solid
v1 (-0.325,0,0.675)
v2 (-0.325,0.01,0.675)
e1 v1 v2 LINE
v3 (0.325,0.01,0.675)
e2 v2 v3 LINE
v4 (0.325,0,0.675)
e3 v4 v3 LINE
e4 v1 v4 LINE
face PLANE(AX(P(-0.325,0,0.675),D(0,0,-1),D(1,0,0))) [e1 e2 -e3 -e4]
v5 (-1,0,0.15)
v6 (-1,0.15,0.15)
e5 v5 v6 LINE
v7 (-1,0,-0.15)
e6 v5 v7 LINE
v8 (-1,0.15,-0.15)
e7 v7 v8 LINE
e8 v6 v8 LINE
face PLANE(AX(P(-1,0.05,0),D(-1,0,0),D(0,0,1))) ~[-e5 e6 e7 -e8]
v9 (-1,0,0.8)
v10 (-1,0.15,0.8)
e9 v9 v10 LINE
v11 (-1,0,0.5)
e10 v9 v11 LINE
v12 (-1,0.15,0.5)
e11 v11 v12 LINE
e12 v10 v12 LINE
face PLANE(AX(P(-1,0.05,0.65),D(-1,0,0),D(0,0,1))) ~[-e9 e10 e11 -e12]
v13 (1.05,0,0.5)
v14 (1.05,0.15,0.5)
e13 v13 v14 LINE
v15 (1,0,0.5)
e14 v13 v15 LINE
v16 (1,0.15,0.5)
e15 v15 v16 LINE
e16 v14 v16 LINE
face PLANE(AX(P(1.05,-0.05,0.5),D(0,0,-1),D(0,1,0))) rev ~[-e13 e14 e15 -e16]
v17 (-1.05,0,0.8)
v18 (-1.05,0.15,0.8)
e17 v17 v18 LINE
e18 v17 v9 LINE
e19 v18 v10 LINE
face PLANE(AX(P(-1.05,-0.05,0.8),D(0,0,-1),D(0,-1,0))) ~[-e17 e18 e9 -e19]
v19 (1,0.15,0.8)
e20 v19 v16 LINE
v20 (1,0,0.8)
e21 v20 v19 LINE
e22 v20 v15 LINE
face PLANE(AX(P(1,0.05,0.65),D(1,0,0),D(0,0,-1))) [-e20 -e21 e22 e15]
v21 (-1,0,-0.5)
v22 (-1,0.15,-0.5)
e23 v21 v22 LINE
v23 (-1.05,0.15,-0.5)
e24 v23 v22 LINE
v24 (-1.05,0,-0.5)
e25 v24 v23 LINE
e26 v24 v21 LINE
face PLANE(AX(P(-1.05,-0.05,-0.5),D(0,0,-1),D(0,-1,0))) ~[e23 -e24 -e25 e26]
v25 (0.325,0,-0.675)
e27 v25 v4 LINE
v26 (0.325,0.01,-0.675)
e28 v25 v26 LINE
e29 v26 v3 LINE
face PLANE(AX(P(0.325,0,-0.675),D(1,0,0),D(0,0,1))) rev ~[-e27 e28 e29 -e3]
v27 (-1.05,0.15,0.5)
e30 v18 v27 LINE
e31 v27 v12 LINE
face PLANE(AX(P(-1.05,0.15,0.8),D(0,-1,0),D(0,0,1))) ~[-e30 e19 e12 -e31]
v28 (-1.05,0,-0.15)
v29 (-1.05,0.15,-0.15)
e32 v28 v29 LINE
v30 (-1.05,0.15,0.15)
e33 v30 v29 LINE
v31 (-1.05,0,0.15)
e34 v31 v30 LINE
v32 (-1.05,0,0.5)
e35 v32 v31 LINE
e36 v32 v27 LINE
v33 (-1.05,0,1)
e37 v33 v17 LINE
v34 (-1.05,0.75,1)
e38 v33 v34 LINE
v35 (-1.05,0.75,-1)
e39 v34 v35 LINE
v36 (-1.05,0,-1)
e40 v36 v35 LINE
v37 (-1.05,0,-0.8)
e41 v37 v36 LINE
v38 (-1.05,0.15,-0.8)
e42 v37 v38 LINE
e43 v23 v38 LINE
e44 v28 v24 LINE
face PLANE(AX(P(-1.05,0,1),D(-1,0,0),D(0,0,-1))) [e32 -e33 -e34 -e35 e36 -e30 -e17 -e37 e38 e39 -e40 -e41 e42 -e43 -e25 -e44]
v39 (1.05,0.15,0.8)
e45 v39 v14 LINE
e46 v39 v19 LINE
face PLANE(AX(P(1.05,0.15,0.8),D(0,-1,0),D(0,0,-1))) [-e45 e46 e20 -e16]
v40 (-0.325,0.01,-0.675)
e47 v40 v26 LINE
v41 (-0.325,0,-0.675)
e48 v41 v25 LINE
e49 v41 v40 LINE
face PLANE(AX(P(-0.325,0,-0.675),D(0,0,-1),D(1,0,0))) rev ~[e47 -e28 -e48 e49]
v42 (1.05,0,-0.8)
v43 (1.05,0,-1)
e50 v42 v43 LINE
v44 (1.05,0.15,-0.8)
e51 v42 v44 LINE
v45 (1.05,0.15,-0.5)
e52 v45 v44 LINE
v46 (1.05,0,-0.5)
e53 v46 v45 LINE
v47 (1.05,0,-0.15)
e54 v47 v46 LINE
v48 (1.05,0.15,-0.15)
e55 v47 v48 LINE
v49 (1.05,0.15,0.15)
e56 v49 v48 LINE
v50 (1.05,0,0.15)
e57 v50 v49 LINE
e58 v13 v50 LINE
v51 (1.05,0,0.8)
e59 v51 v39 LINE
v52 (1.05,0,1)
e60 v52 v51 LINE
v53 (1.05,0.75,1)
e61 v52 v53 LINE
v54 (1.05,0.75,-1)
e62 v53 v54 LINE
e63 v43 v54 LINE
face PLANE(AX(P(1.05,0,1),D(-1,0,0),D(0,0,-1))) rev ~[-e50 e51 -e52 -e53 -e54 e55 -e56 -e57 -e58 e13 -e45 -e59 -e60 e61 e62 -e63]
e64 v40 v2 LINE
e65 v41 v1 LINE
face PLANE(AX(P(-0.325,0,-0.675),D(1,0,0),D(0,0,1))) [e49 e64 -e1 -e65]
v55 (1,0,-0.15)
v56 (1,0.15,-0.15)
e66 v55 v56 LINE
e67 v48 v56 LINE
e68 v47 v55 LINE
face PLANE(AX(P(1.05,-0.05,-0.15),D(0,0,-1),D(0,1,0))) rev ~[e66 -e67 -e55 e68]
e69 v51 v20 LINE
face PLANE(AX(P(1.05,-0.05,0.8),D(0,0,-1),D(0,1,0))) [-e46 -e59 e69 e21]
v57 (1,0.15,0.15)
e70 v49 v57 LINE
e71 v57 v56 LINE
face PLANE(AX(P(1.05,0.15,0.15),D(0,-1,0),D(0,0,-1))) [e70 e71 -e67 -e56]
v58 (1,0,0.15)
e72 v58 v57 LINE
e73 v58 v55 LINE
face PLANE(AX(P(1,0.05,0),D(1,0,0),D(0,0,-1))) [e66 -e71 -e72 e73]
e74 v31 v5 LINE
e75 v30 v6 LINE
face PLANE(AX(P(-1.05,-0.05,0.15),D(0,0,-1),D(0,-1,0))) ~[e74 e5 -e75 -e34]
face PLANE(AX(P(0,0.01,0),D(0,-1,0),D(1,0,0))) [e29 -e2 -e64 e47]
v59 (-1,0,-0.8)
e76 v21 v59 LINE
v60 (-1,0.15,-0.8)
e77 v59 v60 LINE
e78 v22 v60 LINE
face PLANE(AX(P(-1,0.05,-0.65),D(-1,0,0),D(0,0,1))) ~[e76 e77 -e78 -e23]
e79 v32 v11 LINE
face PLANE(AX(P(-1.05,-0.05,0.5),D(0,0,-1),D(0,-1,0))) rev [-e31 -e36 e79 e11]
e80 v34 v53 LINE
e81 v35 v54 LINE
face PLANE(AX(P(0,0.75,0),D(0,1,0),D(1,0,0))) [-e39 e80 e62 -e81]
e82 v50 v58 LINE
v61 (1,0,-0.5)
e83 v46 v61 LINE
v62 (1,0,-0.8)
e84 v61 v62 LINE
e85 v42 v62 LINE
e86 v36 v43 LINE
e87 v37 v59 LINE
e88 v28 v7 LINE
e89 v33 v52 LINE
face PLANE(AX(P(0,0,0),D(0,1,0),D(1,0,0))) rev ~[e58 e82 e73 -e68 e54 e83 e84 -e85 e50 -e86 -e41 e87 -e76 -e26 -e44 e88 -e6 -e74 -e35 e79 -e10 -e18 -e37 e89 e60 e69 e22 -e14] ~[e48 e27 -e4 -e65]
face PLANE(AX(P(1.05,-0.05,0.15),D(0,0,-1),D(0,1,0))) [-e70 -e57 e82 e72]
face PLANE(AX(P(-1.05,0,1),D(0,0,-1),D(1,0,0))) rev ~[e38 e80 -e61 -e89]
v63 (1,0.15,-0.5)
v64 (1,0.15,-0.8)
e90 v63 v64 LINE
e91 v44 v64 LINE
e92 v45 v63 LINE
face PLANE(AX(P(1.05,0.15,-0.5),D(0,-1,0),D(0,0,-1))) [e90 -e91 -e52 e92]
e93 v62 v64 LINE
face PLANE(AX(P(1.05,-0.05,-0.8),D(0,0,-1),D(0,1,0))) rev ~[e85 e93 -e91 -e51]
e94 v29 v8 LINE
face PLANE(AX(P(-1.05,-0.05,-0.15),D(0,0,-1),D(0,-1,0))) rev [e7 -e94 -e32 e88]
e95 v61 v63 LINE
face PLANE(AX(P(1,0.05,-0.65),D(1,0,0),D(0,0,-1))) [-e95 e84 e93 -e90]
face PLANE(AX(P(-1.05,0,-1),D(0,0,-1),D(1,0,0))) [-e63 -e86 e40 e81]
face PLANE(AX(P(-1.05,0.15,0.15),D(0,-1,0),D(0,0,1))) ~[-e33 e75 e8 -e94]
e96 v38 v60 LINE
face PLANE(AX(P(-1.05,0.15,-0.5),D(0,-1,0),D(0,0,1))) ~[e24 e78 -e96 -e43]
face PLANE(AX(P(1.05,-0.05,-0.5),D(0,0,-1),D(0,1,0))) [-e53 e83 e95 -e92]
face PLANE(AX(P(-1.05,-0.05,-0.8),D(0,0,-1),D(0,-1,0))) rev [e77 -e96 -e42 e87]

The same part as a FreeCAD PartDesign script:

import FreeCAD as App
import Part
import Sketcher

V = App.Vector
Q = App.Units.Quantity


def add_polygon(sketch, points):
    """Adds a closed chain of lines whose ends are joined by coincident constraints."""
    first, n = sketch.GeometryCount, len(points)
    for a, b in zip(points, points[1:] + points[:1]):
        sketch.addGeometry(Part.LineSegment(App.Vector(*a, 0), App.Vector(*b, 0)), False)
    for i in range(n):
        sketch.addConstraint(Sketcher.Constraint("Coincident", first + i, 2, first + (i + 1) % n, 1))

doc = App.newDocument("Part")
body = doc.addObject("PartDesign::Body", "Body")

sketch1 = body.newObject("Sketcher::SketchObject", "Sketch")
sketch1.AttachmentSupport = (doc.getObject("XZ_Plane"), [""])
sketch1.MapMode = "FlatFace"
add_polygon(sketch1, [(-1.1, -1), (-1.1, 1), (1.1, 1), (1.1, -1)])
sketch1.addConstraint(Sketcher.Constraint("Vertical", 0))
sketch1.addConstraint(Sketcher.Constraint("Horizontal", 1))
sketch1.addConstraint(Sketcher.Constraint("Vertical", 2))
sketch1.addConstraint(Sketcher.Constraint("Horizontal", 3))
sketch1.addConstraint(Sketcher.Constraint("Symmetric", 0, 2, 2, 2, -1, 1))
sketch1.addConstraint(Sketcher.Constraint("DistanceY", 0, 1, 0, 2, Q("2 mm")))
sketch1.addConstraint(Sketcher.Constraint("DistanceX", 1, 1, 1, 2, Q("2.1 mm")))
pad1 = body.newObject("PartDesign::Pad", "Pad")
pad1.Profile = sketch1
pad1.Length = 0.75
pad1.Reversed = True

sketch2 = body.newObject("Sketcher::SketchObject", "Sketch001")
sketch2.AttachmentSupport = (doc.getObject("YZ_Plane"), [""])
sketch2.MapMode = "FlatFace"
sketch2.AttachmentOffset = App.Placement(V(0, 0, 1.05), App.Rotation())
add_polygon(sketch2, [(0.15, 0.8), (-0.05, 0.8), (-0.05, 0.5), (0.15, 0.5)])
add_polygon(sketch2, [(0.15, 0.15), (-0.05, 0.15), (-0.05, -0.15), (0.15, -0.15)])
add_polygon(sketch2, [(0.15, -0.5), (-0.05, -0.5), (-0.05, -0.8), (0.15, -0.8)])
sketch2.addConstraint(Sketcher.Constraint("Horizontal", 0))
sketch2.addConstraint(Sketcher.Constraint("Vertical", 1))
sketch2.addConstraint(Sketcher.Constraint("Horizontal", 2))
sketch2.addConstraint(Sketcher.Constraint("Vertical", 3))
sketch2.addConstraint(Sketcher.Constraint("Horizontal", 4))
sketch2.addConstraint(Sketcher.Constraint("Vertical", 5))
sketch2.addConstraint(Sketcher.Constraint("Horizontal", 6))
sketch2.addConstraint(Sketcher.Constraint("Vertical", 7))
sketch2.addConstraint(Sketcher.Constraint("Horizontal", 8))
sketch2.addConstraint(Sketcher.Constraint("Vertical", 9))
sketch2.addConstraint(Sketcher.Constraint("Horizontal", 10))
sketch2.addConstraint(Sketcher.Constraint("Vertical", 11))
sketch2.addConstraint(Sketcher.Constraint("Symmetric", 1, 2, 8, 2, -1))
sketch2.addConstraint(Sketcher.Constraint("Symmetric", 3, 2, 10, 2, -1))
sketch2.addConstraint(Sketcher.Constraint("Vertical", 1, 2, 4, 2))
sketch2.addConstraint(Sketcher.Constraint("Vertical", 3, 2, 6, 2))
sketch2.addConstraint(Sketcher.Constraint("Equal", 3, 5))
sketch2.addConstraint(Sketcher.Constraint("DistanceX", 0, 2, 0, 1, Q("0.2 mm")))
sketch2.addConstraint(Sketcher.Constraint("DistanceY", 1, 2, 1, 1, Q("0.3 mm")))
sketch2.addConstraint(Sketcher.Constraint("DistanceY", 8, 2, 1, 2, Q("1 mm")))
sketch2.addConstraint(Sketcher.Constraint("DistanceX", 0, 2, -1, 1, Q("0.05 mm")))
sketch2.addConstraint(Sketcher.Constraint("DistanceY", -1, 1, 4, 2, Q("0.15 mm")))
pocket1 = body.newObject("PartDesign::Pocket", "Pocket")
pocket1.Profile = sketch2
pocket1.Length = 0.05
doc.recompute()

mirrored = body.newObject("PartDesign::Mirrored", "Mirrored")
mirrored.Originals = [pocket1]
mirrored.MirrorPlane = (doc.getObject("YZ_Plane"), [""])
body.Tip = mirrored

sketch3 = body.newObject("Sketcher::SketchObject", "Sketch002")
sketch3.AttachmentSupport = (doc.getObject("XZ_Plane"), [""])
sketch3.MapMode = "FlatFace"
add_polygon(sketch3, [(-0.3, 0.7), (-0.3, -0.7), (0.3, -0.7), (0.3, 0.7)])
sketch3.addConstraint(Sketcher.Constraint("Vertical", 0))
sketch3.addConstraint(Sketcher.Constraint("Horizontal", 1))
sketch3.addConstraint(Sketcher.Constraint("Vertical", 2))
sketch3.addConstraint(Sketcher.Constraint("Horizontal", 3))
sketch3.addConstraint(Sketcher.Constraint("Symmetric", 0, 2, 2, 2, -1, 1))
sketch3.addConstraint(Sketcher.Constraint("DistanceX", 1, 1, 1, 2, Q("0.65 mm")))
sketch3.addConstraint(Sketcher.Constraint("DistanceY", 0, 2, 0, 1, Q("1.35 mm")))
pocket2 = body.newObject("PartDesign::Pocket", "Pocket001")
pocket2.Profile = sketch3
pocket2.Length = 0.01

doc.recompute()
